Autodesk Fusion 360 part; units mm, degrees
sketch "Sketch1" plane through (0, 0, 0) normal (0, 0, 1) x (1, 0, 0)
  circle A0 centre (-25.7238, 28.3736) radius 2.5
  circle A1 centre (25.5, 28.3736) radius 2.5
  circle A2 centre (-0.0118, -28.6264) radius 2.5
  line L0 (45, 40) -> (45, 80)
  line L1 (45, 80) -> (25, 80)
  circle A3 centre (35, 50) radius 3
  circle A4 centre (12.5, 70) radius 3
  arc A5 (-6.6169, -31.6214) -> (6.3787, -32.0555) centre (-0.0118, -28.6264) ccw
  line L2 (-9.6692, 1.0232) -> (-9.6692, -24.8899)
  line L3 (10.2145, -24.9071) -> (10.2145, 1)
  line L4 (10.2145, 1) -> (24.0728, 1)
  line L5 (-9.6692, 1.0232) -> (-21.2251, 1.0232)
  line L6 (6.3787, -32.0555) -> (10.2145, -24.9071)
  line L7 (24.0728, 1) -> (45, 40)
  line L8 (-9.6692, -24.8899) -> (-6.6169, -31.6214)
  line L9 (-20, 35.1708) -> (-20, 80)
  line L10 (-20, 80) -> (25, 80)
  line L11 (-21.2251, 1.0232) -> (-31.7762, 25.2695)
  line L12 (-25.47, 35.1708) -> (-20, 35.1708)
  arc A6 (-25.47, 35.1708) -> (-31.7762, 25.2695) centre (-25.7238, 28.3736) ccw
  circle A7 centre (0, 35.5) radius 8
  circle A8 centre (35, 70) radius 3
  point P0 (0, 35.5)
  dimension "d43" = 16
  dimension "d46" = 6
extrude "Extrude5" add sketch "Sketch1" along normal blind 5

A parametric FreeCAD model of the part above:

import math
import FreeCAD as App
import Part
import Sketcher
Q = App.Units.Quantity

doc = App.newDocument("Part")
params = doc.addObject("Spreadsheet::Sheet", "Params")
for row, (alias, value) in enumerate([
    ("sketch1_diameter", "16 mm"),
    ("sketch1_diameter2", "6 mm"),
    ("sketch1_diameter3", "6 mm"),
    ("sketch1_diameter4", "6 mm"),
    ("sketch1_diameter5", "5 mm"),
    ("pad1_length", "5 mm"),
], start=1):
    params.set(f"A{row}", alias)
    params.set(f"B{row}", "=" + value)
    params.setAlias(f"B{row}", alias)

body = doc.addObject("PartDesign::Body", "Body")

# Sketch on XY plane
sketch1 = body.newObject("Sketcher::SketchObject", "Sketch")
sketch1.AttachmentSupport = (doc.getObject("XY_Plane"), [""])
sketch1.MapMode = "FlatFace"
sketch1.addGeometry([
    Part.LineSegment(App.Vector(24.0728, 1, 0), App.Vector(45, 40, 0)),  # 0
    Part.LineSegment(App.Vector(45, 40, 0), App.Vector(45, 80, 0)),  # 1
    Part.LineSegment(App.Vector(45, 80, 0), App.Vector(-20, 80, 0)),  # 2
    Part.LineSegment(App.Vector(-20, 80, 0), App.Vector(-20, 35.1708, 0)),  # 3
    Part.LineSegment(App.Vector(-20, 35.1708, 0), App.Vector(-25.47, 35.1708, 0)),  # 4
    Part.ArcOfCircle(Part.Circle(App.Vector(-25.7238, 28.3736, 0), App.Vector(0, 0, 1), 6.801937), math.radians(87.861632), math.radians(207.151969)),  # 5
    Part.LineSegment(App.Vector(-31.7762, 25.2695, 0), App.Vector(-21.2251, 1.0232, 0)),  # 6
    Part.LineSegment(App.Vector(-21.2251, 1.0232, 0), App.Vector(-9.6692, 1.0232, 0)),  # 7
    Part.LineSegment(App.Vector(-9.6692, 1.0232, 0), App.Vector(-9.6692, -24.8899, 0)),  # 8
    Part.LineSegment(App.Vector(-9.6692, -24.8899, 0), App.Vector(-6.6169, -31.6214, 0)),  # 9
    Part.ArcOfCircle(Part.Circle(App.Vector(-0.0118, -28.6264, 0), App.Vector(0, 0, 1), 7.252404), math.radians(-155.608678), math.radians(-28.217712)),  # 10
    Part.LineSegment(App.Vector(6.3787, -32.0555, 0), App.Vector(10.2145, -24.9071, 0)),  # 11
    Part.LineSegment(App.Vector(10.2145, -24.9071, 0), App.Vector(10.2145, 1, 0)),  # 12
    Part.LineSegment(App.Vector(10.2145, 1, 0), App.Vector(24.0728, 1, 0)),  # 13
    Part.Circle(App.Vector(-0.0118, -28.6264, 0), App.Vector(0, 0, 1), 2.5),  # 14
    Part.Circle(App.Vector(-25.7238, 28.3736, 0), App.Vector(0, 0, 1), 2.5),  # 15
    Part.Circle(App.Vector(0, 35.5, 0), App.Vector(0, 0, 1), 8),  # 16
    Part.Circle(App.Vector(25.5, 28.3736, 0), App.Vector(0, 0, 1), 2.5),  # 17
    Part.Circle(App.Vector(35, 50, 0), App.Vector(0, 0, 1), 3),  # 18
    Part.Circle(App.Vector(12.5, 70, 0), App.Vector(0, 0, 1), 3),  # 19
    Part.Circle(App.Vector(35, 70, 0), App.Vector(0, 0, 1), 3),  # 20
], False)
sketch1.addConstraint([
    Sketcher.Constraint("Coincident", 0, 2, 1, 1),
    Sketcher.Constraint("Coincident", 1, 2, 2, 1),
    Sketcher.Constraint("Coincident", 2, 2, 3, 1),
    Sketcher.Constraint("Coincident", 3, 2, 4, 1),
    Sketcher.Constraint("Coincident", 4, 2, 5, 1),
    Sketcher.Constraint("Coincident", 5, 2, 6, 1),
    Sketcher.Constraint("Coincident", 6, 2, 7, 1),
    Sketcher.Constraint("Coincident", 7, 2, 8, 1),
    Sketcher.Constraint("Coincident", 8, 2, 9, 1),
    Sketcher.Constraint("Coincident", 9, 2, 10, 1),
    Sketcher.Constraint("Coincident", 10, 2, 11, 1),
    Sketcher.Constraint("Coincident", 11, 2, 12, 1),
    Sketcher.Constraint("Coincident", 12, 2, 13, 1),
    Sketcher.Constraint("Coincident", 13, 2, 0, 1),
    Sketcher.Constraint("Vertical", 1),
    Sketcher.Constraint("Horizontal", 2),
    Sketcher.Constraint("Vertical", 3),
    Sketcher.Constraint("Horizontal", 4),
    Sketcher.Constraint("Horizontal", 7),
    Sketcher.Constraint("Vertical", 8),
    Sketcher.Constraint("Vertical", 12),
    Sketcher.Constraint("Horizontal", 13),
    Sketcher.Constraint("Coincident", 14, 3, 10, 3),
    Sketcher.Constraint("Coincident", 15, 3, 5, 3),
    Sketcher.Constraint("PointOnObject", 16, 3, -2),
    Sketcher.Constraint("Diameter", 16, Q("16 mm")),
    Sketcher.Constraint("Diameter", 18, Q("6 mm")),
    Sketcher.Constraint("Diameter", 19, Q("6 mm")),
    Sketcher.Constraint("Diameter", 20, Q("6 mm")),
    Sketcher.Constraint("Diameter", 14, Q("5 mm")),
    Sketcher.Constraint("Diameter", 15, Q("5 mm")),
    Sketcher.Constraint("Diameter", 17, Q("5 mm")),
    Sketcher.Constraint("DistanceX", 2, 2, 2, 1, Q("65 mm")),
    Sketcher.Constraint("DistanceY", 1, 1, 1, 2, Q("40 mm")),
    Sketcher.Constraint("DistanceX", -1, 1, 18, 3, Q("35 mm")),
    Sketcher.Constraint("DistanceY", -1, 1, 18, 3, Q("50 mm")),
    Sketcher.Constraint("DistanceY", -1, 1, 19, 3, Q("70 mm")),
    Sketcher.Constraint("DistanceX", -1, 1, 20, 3, Q("35 mm")),
    Sketcher.Constraint("DistanceY", -1, 1, 20, 3, Q("70 mm")),
    Sketcher.Constraint("DistanceX", -1, 1, 0, 2, Q("45 mm")),
    Sketcher.Constraint("DistanceY", -1, 1, 0, 2, Q("40 mm")),
    Sketcher.Constraint("DistanceY", -1, 1, 12, 2, Q("1 mm")),
    Sketcher.Constraint("Radius", 5, Q("6.802 mm")),
    Sketcher.Constraint("DistanceY", 10, 3, 5, 3, Q("57 mm")),
    Sketcher.Constraint("DistanceY", 10, 3, 17, 3, Q("57 mm")),
    Sketcher.Constraint("DistanceX", 19, 3, 17, 3, Q("13 mm")),
    Sketcher.Constraint("DistanceX", 4, 2, 4, 1, Q("5.47 mm")),
    Sketcher.Constraint("DistanceY", -1, 1, 16, 3, Q("35.5 mm")),
    Sketcher.Constraint("DistanceX", -1, 1, 17, 3, Q("25.5 mm")),
    Sketcher.Constraint("Radius", 10, Q("7.2524 mm")),
    Sketcher.Constraint("Distance", 0, Q("44.26 mm")),
    Sketcher.Constraint("DistanceX", 7, 1, 7, 2, Q("11.556 mm")),
    Sketcher.Constraint("DistanceY", 8, 2, 8, 1, Q("25.913 mm")),
    Sketcher.Constraint("DistanceY", 12, 1, 12, 2, Q("25.907 mm")),
    Sketcher.Constraint("DistanceY", 8, 2, -1, 1, Q("24.89 mm")),
    Sketcher.Constraint("DistanceX", 13, 1, 13, 2, Q("13.8583 mm")),
    Sketcher.Constraint("DistanceY", 3, 2, 3, 1, Q("44.8292 mm")),
    Sketcher.Constraint("DistanceX", 6, 2, -1, 1, Q("21.225 mm")),
    Sketcher.Constraint("DistanceX", 9, 2, -1, 1, Q("6.617 mm")),
    Sketcher.Constraint("DistanceX", 5, 3, 10, 3, Q("25.712 mm")),
    Sketcher.Constraint("DistanceY", 5, 2, 5, 3, Q("3.104 mm")),
    Sketcher.Constraint("DistanceX", 5, 2, 6, 2, Q("10.551 mm")),
    Sketcher.Constraint("DistanceY", 10, 2, 10, 3, Q("3.429 mm")),
])
sketch1.setExpression("Constraints[25]", "Params.sketch1_diameter")
sketch1.setExpression("Constraints[26]", "Params.sketch1_diameter2")
sketch1.setExpression("Constraints[27]", "Params.sketch1_diameter3")
sketch1.setExpression("Constraints[28]", "Params.sketch1_diameter4")
sketch1.setExpression("Constraints[29]", "Params.sketch1_diameter5")
pad1 = body.newObject("PartDesign::Pad", "Pad")
pad1.Profile = sketch1
pad1.setExpression("Length", "Params.pad1_length")

doc.recompute()
